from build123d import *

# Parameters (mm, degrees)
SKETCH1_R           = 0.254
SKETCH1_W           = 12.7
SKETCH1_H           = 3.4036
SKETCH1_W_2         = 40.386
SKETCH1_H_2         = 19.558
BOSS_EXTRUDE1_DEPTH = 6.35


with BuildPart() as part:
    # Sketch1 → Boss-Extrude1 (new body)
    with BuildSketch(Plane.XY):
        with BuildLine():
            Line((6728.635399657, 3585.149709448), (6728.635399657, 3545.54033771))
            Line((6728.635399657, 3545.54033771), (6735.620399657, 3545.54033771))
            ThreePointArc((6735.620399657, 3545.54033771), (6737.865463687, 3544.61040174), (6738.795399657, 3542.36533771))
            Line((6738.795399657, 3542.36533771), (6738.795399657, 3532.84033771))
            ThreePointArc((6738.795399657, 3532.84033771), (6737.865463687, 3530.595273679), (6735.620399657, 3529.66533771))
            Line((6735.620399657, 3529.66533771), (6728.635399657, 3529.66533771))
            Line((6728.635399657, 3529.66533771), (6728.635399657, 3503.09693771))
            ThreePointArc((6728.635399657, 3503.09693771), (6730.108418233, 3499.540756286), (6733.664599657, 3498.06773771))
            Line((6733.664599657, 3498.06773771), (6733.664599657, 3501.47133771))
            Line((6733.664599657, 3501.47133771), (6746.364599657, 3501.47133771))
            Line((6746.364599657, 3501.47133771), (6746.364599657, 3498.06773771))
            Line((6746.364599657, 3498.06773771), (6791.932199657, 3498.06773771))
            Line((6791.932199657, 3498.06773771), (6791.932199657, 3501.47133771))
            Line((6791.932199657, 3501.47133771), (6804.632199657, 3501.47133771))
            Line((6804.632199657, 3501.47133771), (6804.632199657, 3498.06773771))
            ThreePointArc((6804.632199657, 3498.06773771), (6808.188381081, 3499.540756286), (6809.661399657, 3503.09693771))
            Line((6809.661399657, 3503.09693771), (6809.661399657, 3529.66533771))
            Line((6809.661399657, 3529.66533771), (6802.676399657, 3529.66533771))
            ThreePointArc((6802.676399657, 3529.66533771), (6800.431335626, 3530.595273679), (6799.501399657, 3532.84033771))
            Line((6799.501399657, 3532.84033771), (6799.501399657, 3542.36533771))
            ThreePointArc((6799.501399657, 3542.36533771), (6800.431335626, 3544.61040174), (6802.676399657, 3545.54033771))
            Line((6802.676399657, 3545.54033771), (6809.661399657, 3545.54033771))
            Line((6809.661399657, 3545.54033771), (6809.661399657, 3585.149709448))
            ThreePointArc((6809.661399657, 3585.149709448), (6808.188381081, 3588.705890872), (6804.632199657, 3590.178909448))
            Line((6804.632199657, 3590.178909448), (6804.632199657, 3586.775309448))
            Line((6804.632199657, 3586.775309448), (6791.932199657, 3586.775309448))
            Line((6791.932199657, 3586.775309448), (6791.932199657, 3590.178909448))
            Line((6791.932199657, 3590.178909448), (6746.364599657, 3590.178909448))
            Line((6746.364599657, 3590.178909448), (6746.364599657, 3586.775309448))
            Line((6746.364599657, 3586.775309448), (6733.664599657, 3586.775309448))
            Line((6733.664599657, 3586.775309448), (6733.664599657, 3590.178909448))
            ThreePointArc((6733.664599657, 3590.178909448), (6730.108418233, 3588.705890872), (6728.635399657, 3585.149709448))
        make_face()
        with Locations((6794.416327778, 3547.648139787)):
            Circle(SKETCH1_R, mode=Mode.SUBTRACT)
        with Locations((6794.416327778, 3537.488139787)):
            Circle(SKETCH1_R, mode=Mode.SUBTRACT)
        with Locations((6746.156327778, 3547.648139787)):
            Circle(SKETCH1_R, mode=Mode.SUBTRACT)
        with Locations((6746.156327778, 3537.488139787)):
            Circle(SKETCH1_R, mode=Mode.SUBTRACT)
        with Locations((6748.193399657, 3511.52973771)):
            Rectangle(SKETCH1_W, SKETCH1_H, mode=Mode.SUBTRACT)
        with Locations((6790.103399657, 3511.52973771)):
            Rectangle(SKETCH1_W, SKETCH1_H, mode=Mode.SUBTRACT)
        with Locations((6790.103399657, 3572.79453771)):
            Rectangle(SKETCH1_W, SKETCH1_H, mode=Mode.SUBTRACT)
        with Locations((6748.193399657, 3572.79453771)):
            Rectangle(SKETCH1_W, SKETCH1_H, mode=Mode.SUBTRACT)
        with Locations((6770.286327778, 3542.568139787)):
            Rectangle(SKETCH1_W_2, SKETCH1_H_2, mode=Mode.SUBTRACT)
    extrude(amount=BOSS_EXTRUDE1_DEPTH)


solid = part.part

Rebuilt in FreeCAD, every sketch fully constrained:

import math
import FreeCAD as App
import Part
import Sketcher
from FreeCAD import Vector
Q = App.Units.Quantity


def add_polygon(sketch, points):
    """Adds a closed chain of lines whose ends are joined by coincident constraints."""
    first, n = sketch.GeometryCount, len(points)
    for a, b in zip(points, points[1:] + points[:1]):
        sketch.addGeometry(Part.LineSegment(App.Vector(*a, 0), App.Vector(*b, 0)), False)
    for i in range(n):
        sketch.addConstraint(Sketcher.Constraint("Coincident", first + i, 2, first + (i + 1) % n, 1))

doc = App.newDocument("Part")
body = doc.addObject("PartDesign::Body", "Body")

sketch1 = body.newObject("Sketcher::SketchObject", "Sketch")
sketch1.AttachmentSupport = (doc.getObject("XY_Plane"), [""])
sketch1.MapMode = "FlatFace"
sketch1.addGeometry(Part.LineSegment(Vector(6728.6354, 3585.149709, 0), Vector(6728.6354, 3545.540338, 0)), False)
sketch1.addGeometry(Part.LineSegment(Vector(6728.6354, 3545.540338, 0), Vector(6735.6204, 3545.540338, 0)), False)
sketch1.addGeometry(Part.ArcOfCircle(Part.Circle(Vector(6735.6204, 3542.365338, 0), Vector(0, 0, 1), 3.175), math.radians(0), math.radians(90)), False)
sketch1.addGeometry(Part.LineSegment(Vector(6738.7954, 3542.365338, 0), Vector(6738.7954, 3532.840338, 0)), False)
sketch1.addGeometry(Part.ArcOfCircle(Part.Circle(Vector(6735.6204, 3532.840338, 0), Vector(0, 0, 1), 3.175), math.radians(-90), math.radians(0)), False)
sketch1.addGeometry(Part.LineSegment(Vector(6735.6204, 3529.665338, 0), Vector(6728.6354, 3529.665338, 0)), False)
sketch1.addGeometry(Part.LineSegment(Vector(6728.6354, 3529.665338, 0), Vector(6728.6354, 3503.096938, 0)), False)
sketch1.addGeometry(Part.ArcOfCircle(Part.Circle(Vector(6733.6646, 3503.096938, 0), Vector(0, 0, 1), 5.0292), math.radians(180), math.radians(270)), False)
sketch1.addGeometry(Part.LineSegment(Vector(6733.6646, 3498.067738, 0), Vector(6733.6646, 3501.471338, 0)), False)
sketch1.addGeometry(Part.LineSegment(Vector(6733.6646, 3501.471338, 0), Vector(6746.3646, 3501.471338, 0)), False)
sketch1.addGeometry(Part.LineSegment(Vector(6746.3646, 3501.471338, 0), Vector(6746.3646, 3498.067738, 0)), False)
sketch1.addGeometry(Part.LineSegment(Vector(6746.3646, 3498.067738, 0), Vector(6791.9322, 3498.067738, 0)), False)
sketch1.addGeometry(Part.LineSegment(Vector(6791.9322, 3498.067738, 0), Vector(6791.9322, 3501.471338, 0)), False)
sketch1.addGeometry(Part.LineSegment(Vector(6791.9322, 3501.471338, 0), Vector(6804.6322, 3501.471338, 0)), False)
sketch1.addGeometry(Part.LineSegment(Vector(6804.6322, 3501.471338, 0), Vector(6804.6322, 3498.067738, 0)), False)
sketch1.addGeometry(Part.ArcOfCircle(Part.Circle(Vector(6804.6322, 3503.096938, 0), Vector(0, 0, 1), 5.0292), math.radians(-90), math.radians(0)), False)
sketch1.addGeometry(Part.LineSegment(Vector(6809.6614, 3503.096938, 0), Vector(6809.6614, 3529.665338, 0)), False)
sketch1.addGeometry(Part.LineSegment(Vector(6809.6614, 3529.665338, 0), Vector(6802.6764, 3529.665338, 0)), False)
sketch1.addGeometry(Part.ArcOfCircle(Part.Circle(Vector(6802.6764, 3532.840338, 0), Vector(0, 0, 1), 3.175), math.radians(180), math.radians(270)), False)
sketch1.addGeometry(Part.LineSegment(Vector(6799.5014, 3532.840338, 0), Vector(6799.5014, 3542.365338, 0)), False)
sketch1.addGeometry(Part.ArcOfCircle(Part.Circle(Vector(6802.6764, 3542.365338, 0), Vector(0, 0, 1), 3.175), math.radians(90), math.radians(180)), False)
sketch1.addGeometry(Part.LineSegment(Vector(6802.6764, 3545.540338, 0), Vector(6809.6614, 3545.540338, 0)), False)
sketch1.addGeometry(Part.LineSegment(Vector(6809.6614, 3545.540338, 0), Vector(6809.6614, 3585.149709, 0)), False)
sketch1.addGeometry(Part.ArcOfCircle(Part.Circle(Vector(6804.6322, 3585.149709, 0), Vector(0, 0, 1), 5.0292), math.radians(0), math.radians(90)), False)
sketch1.addGeometry(Part.LineSegment(Vector(6804.6322, 3590.178909, 0), Vector(6804.6322, 3586.775309, 0)), False)
sketch1.addGeometry(Part.LineSegment(Vector(6804.6322, 3586.775309, 0), Vector(6791.9322, 3586.775309, 0)), False)
sketch1.addGeometry(Part.LineSegment(Vector(6791.9322, 3586.775309, 0), Vector(6791.9322, 3590.178909, 0)), False)
sketch1.addGeometry(Part.LineSegment(Vector(6791.9322, 3590.178909, 0), Vector(6746.3646, 3590.178909, 0)), False)
sketch1.addGeometry(Part.LineSegment(Vector(6746.3646, 3590.178909, 0), Vector(6746.3646, 3586.775309, 0)), False)
sketch1.addGeometry(Part.LineSegment(Vector(6746.3646, 3586.775309, 0), Vector(6733.6646, 3586.775309, 0)), False)
sketch1.addGeometry(Part.LineSegment(Vector(6733.6646, 3586.775309, 0), Vector(6733.6646, 3590.178909, 0)), False)
sketch1.addGeometry(Part.ArcOfCircle(Part.Circle(Vector(6733.6646, 3585.149709, 0), Vector(0, 0, 1), 5.0292), math.radians(90), math.radians(180)), False)
add_polygon(sketch1, [(6754.5434, 3509.827938), (6741.8434, 3509.827938), (6741.8434, 3513.231538), (6754.5434, 3513.231538)])
sketch1.addGeometry(Part.Circle(Vector(6746.156328, 3537.48814, 0), Vector(0, 0, 1), 0.254), False)
add_polygon(sketch1, [(6796.4534, 3509.827938), (6783.7534, 3509.827938), (6783.7534, 3513.231538), (6796.4534, 3513.231538)])
sketch1.addGeometry(Part.Circle(Vector(6794.416328, 3537.48814, 0), Vector(0, 0, 1), 0.254), False)
sketch1.addGeometry(Part.Circle(Vector(6746.156328, 3547.64814, 0), Vector(0, 0, 1), 0.254), False)
add_polygon(sketch1, [(6754.5434, 3571.092738), (6741.8434, 3571.092738), (6741.8434, 3574.496338), (6754.5434, 3574.496338)])
add_polygon(sketch1, [(6790.479328, 3532.78914), (6750.093328, 3532.78914), (6750.093328, 3552.34714), (6790.479328, 3552.34714)])
sketch1.addGeometry(Part.Circle(Vector(6794.416328, 3547.64814, 0), Vector(0, 0, 1), 0.254), False)
add_polygon(sketch1, [(6796.4534, 3571.092738), (6783.7534, 3571.092738), (6783.7534, 3574.496338), (6796.4534, 3574.496338)])
sketch1.addConstraint(Sketcher.Constraint("Coincident", 0, 2, 1, 1))
sketch1.addConstraint(Sketcher.Constraint("Tangent", 1, 2, 2, 2))
sketch1.addConstraint(Sketcher.Constraint("Tangent", 2, 1, 3, 1))
sketch1.addConstraint(Sketcher.Constraint("Tangent", 3, 2, 4, 2))
sketch1.addConstraint(Sketcher.Constraint("Tangent", 4, 1, 5, 1))
sketch1.addConstraint(Sketcher.Constraint("Coincident", 5, 2, 6, 1))
sketch1.addConstraint(Sketcher.Constraint("Tangent", 6, 2, 7, 1))
sketch1.addConstraint(Sketcher.Constraint("Coincident", 7, 2, 8, 1))
sketch1.addConstraint(Sketcher.Constraint("Coincident", 8, 2, 9, 1))
sketch1.addConstraint(Sketcher.Constraint("Coincident", 9, 2, 10, 1))
sketch1.addConstraint(Sketcher.Constraint("Coincident", 10, 2, 11, 1))
sketch1.addConstraint(Sketcher.Constraint("Coincident", 11, 2, 12, 1))
sketch1.addConstraint(Sketcher.Constraint("Coincident", 12, 2, 13, 1))
sketch1.addConstraint(Sketcher.Constraint("Coincident", 13, 2, 14, 1))
sketch1.addConstraint(Sketcher.Constraint("Coincident", 14, 2, 15, 1))
sketch1.addConstraint(Sketcher.Constraint("Tangent", 15, 2, 16, 1))
sketch1.addConstraint(Sketcher.Constraint("Coincident", 16, 2, 17, 1))
sketch1.addConstraint(Sketcher.Constraint("Tangent", 17, 2, 18, 2))
sketch1.addConstraint(Sketcher.Constraint("Tangent", 18, 1, 19, 1))
sketch1.addConstraint(Sketcher.Constraint("Tangent", 19, 2, 20, 2))
sketch1.addConstraint(Sketcher.Constraint("Tangent", 20, 1, 21, 1))
sketch1.addConstraint(Sketcher.Constraint("Coincident", 21, 2, 22, 1))
sketch1.addConstraint(Sketcher.Constraint("Tangent", 22, 2, 23, 1))
sketch1.addConstraint(Sketcher.Constraint("Coincident", 23, 2, 24, 1))
sketch1.addConstraint(Sketcher.Constraint("Coincident", 24, 2, 25, 1))
sketch1.addConstraint(Sketcher.Constraint("Coincident", 25, 2, 26, 1))
sketch1.addConstraint(Sketcher.Constraint("Coincident", 26, 2, 27, 1))
sketch1.addConstraint(Sketcher.Constraint("Coincident", 27, 2, 28, 1))
sketch1.addConstraint(Sketcher.Constraint("Coincident", 28, 2, 29, 1))
sketch1.addConstraint(Sketcher.Constraint("Coincident", 29, 2, 30, 1))
sketch1.addConstraint(Sketcher.Constraint("Coincident", 30, 2, 31, 1))
sketch1.addConstraint(Sketcher.Constraint("Tangent", 31, 2, 0, 1))
sketch1.addConstraint(Sketcher.Constraint("Vertical", 0))
sketch1.addConstraint(Sketcher.Constraint("Horizontal", 1))
sketch1.addConstraint(Sketcher.Constraint("Vertical", 3))
sketch1.addConstraint(Sketcher.Constraint("Horizontal", 5))
sketch1.addConstraint(Sketcher.Constraint("Vertical", 6))
sketch1.addConstraint(Sketcher.Constraint("Vertical", 8))
sketch1.addConstraint(Sketcher.Constraint("Horizontal", 9))
sketch1.addConstraint(Sketcher.Constraint("Vertical", 10))
sketch1.addConstraint(Sketcher.Constraint("Horizontal", 11))
sketch1.addConstraint(Sketcher.Constraint("Vertical", 12))
sketch1.addConstraint(Sketcher.Constraint("Horizontal", 13))
sketch1.addConstraint(Sketcher.Constraint("Vertical", 14))
sketch1.addConstraint(Sketcher.Constraint("Vertical", 16))
sketch1.addConstraint(Sketcher.Constraint("Horizontal", 17))
sketch1.addConstraint(Sketcher.Constraint("Vertical", 19))
sketch1.addConstraint(Sketcher.Constraint("Horizontal", 21))
sketch1.addConstraint(Sketcher.Constraint("Vertical", 22))
sketch1.addConstraint(Sketcher.Constraint("Vertical", 24))
sketch1.addConstraint(Sketcher.Constraint("Horizontal", 25))
sketch1.addConstraint(Sketcher.Constraint("Vertical", 26))
sketch1.addConstraint(Sketcher.Constraint("Horizontal", 27))
sketch1.addConstraint(Sketcher.Constraint("Vertical", 28))
sketch1.addConstraint(Sketcher.Constraint("Horizontal", 29))
sketch1.addConstraint(Sketcher.Constraint("Vertical", 30))
sketch1.addConstraint(Sketcher.Constraint("Horizontal", 32))
sketch1.addConstraint(Sketcher.Constraint("Vertical", 33))
sketch1.addConstraint(Sketcher.Constraint("Horizontal", 34))
sketch1.addConstraint(Sketcher.Constraint("Vertical", 35))
sketch1.addConstraint(Sketcher.Constraint("Horizontal", 37))
sketch1.addConstraint(Sketcher.Constraint("Vertical", 38))
sketch1.addConstraint(Sketcher.Constraint("Horizontal", 39))
sketch1.addConstraint(Sketcher.Constraint("Vertical", 40))
sketch1.addConstraint(Sketcher.Constraint("Horizontal", 43))
sketch1.addConstraint(Sketcher.Constraint("Vertical", 44))
sketch1.addConstraint(Sketcher.Constraint("Horizontal", 45))
sketch1.addConstraint(Sketcher.Constraint("Vertical", 46))
sketch1.addConstraint(Sketcher.Constraint("Horizontal", 47))
sketch1.addConstraint(Sketcher.Constraint("Vertical", 48))
sketch1.addConstraint(Sketcher.Constraint("Horizontal", 49))
sketch1.addConstraint(Sketcher.Constraint("Vertical", 50))
sketch1.addConstraint(Sketcher.Constraint("Horizontal", 52))
sketch1.addConstraint(Sketcher.Constraint("Vertical", 53))
sketch1.addConstraint(Sketcher.Constraint("Horizontal", 54))
sketch1.addConstraint(Sketcher.Constraint("Vertical", 55))
sketch1.addConstraint(Sketcher.Constraint("Equal", 2, 4))
sketch1.addConstraint(Sketcher.Constraint("Equal", 7, 15))
sketch1.addConstraint(Sketcher.Constraint("Equal", 4, 18))
sketch1.addConstraint(Sketcher.Constraint("Equal", 18, 20))
sketch1.addConstraint(Sketcher.Constraint("Equal", 15, 23))
sketch1.addConstraint(Sketcher.Constraint("Equal", 23, 31))
sketch1.addConstraint(Sketcher.Constraint("Equal", 36, 41))
sketch1.addConstraint(Sketcher.Constraint("Equal", 41, 42))
sketch1.addConstraint(Sketcher.Constraint("Equal", 42, 51))
sketch1.addConstraint(Sketcher.Constraint("Horizontal", 7, 3, 15, 3))
sketch1.addConstraint(Sketcher.Constraint("Horizontal", 4, 3, 18, 3))
sketch1.addConstraint(Sketcher.Constraint("Horizontal", 2, 3, 20, 3))
sketch1.addConstraint(Sketcher.Constraint("Horizontal", 23, 3, 31, 3))
sketch1.addConstraint(Sketcher.Constraint("Horizontal", 36, 3, 41, 3))
sketch1.addConstraint(Sketcher.Constraint("Horizontal", 42, 3, 51, 3))
sketch1.addConstraint(Sketcher.Constraint("Horizontal", 7, 2, 10, 2))
sketch1.addConstraint(Sketcher.Constraint("Horizontal", 9, 2, 12, 2))
sketch1.addConstraint(Sketcher.Constraint("Horizontal", 23, 2, 26, 2))
sketch1.addConstraint(Sketcher.Constraint("Horizontal", 25, 2, 28, 2))
sketch1.addConstraint(Sketcher.Constraint("Horizontal", 35, 2, 37, 2))
sketch1.addConstraint(Sketcher.Constraint("Horizontal", 34, 2, 38, 2))
sketch1.addConstraint(Sketcher.Constraint("Horizontal", 46, 2, 52, 2))
sketch1.addConstraint(Sketcher.Constraint("Horizontal", 45, 2, 53, 2))
sketch1.addConstraint(Sketcher.Constraint("Vertical", 15, 3, 23, 3))
sketch1.addConstraint(Sketcher.Constraint("Vertical", 7, 3, 31, 3))
sketch1.addConstraint(Sketcher.Constraint("Vertical", 36, 3, 42, 3))
sketch1.addConstraint(Sketcher.Constraint("Vertical", 41, 3, 51, 3))
sketch1.addConstraint(Sketcher.Constraint("Vertical", 31, 3, 7, 2))
sketch1.addConstraint(Sketcher.Constraint("Vertical", 23, 3, 13, 2))
sketch1.addConstraint(Sketcher.Constraint("Vertical", 14, 2, 23, 2))
sketch1.addConstraint(Sketcher.Constraint("Vertical", 12, 2, 25, 2))
sketch1.addConstraint(Sketcher.Constraint("Vertical", 10, 2, 27, 2))
sketch1.addConstraint(Sketcher.Constraint("Vertical", 8, 2, 29, 2))
sketch1.addConstraint(Sketcher.Constraint("Vertical", 33, 2, 43, 2))
sketch1.addConstraint(Sketcher.Constraint("Vertical", 35, 2, 45, 2))
sketch1.addConstraint(Sketcher.Constraint("Vertical", 38, 2, 52, 2))
sketch1.addConstraint(Sketcher.Constraint("Vertical", 40, 2, 54, 2))
sketch1.addConstraint(Sketcher.Constraint("Equal", 9, 13))
sketch1.addConstraint(Sketcher.Constraint("Equal", 5, 17))
sketch1.addConstraint(Sketcher.Constraint("Equal", 29, 32))
sketch1.addConstraint(Sketcher.Constraint("Equal", 34, 37))
sketch1.addConstraint(Sketcher.Constraint("Equal", 14, 24))
sketch1.addConstraint(Sketcher.Constraint("Equal", 30, 33))
sketch1.addConstraint(Sketcher.Constraint("Equal", 40, 44))
sketch1.addConstraint(Sketcher.Constraint("Diameter", 36, Q("0.02 in")))
sketch1.addConstraint(Sketcher.Constraint("DistanceX", 9, 1, 9, 2, Q("0.5 in")))
sketch1.addConstraint(Sketcher.Constraint("Radius", 2, Q("0.125 in")))
sketch1.addConstraint(Sketcher.Constraint("Radius", 7, Q("0.198 in")))
sketch1.addConstraint(Sketcher.Constraint("DistanceX", 47, 2, 47, 1, Q("1.59 in")))
sketch1.addConstraint(Sketcher.Constraint("DistanceY", 48, 1, 48, 2, Q("0.77 in")))
sketch1.addConstraint(Sketcher.Constraint("DistanceX", 1, 1, 1, 2, Q("0.275 in")))
sketch1.addConstraint(Sketcher.Constraint("DistanceX", 11, 1, 11, 2, Q("1.794 in")))
sketch1.addConstraint(Sketcher.Constraint("DistanceY", 3, 2, 3, 1, Q("0.375 in")))
sketch1.addConstraint(Sketcher.Constraint("DistanceY", 6, 2, 6, 1, Q("1.046 in")))
sketch1.addConstraint(Sketcher.Constraint("DistanceY", 8, 1, 8, 2, Q("0.134 in")))
sketch1.addConstraint(Sketcher.Constraint("DistanceY", 0, 2, 0, 1, 39.609372))
sketch1.addConstraint(Sketcher.Constraint("DistanceX", -1, 1, 2, 3, 6735.6204))
sketch1.addConstraint(Sketcher.Constraint("DistanceX", -1, 1, 32, 2, 6741.8434))
sketch1.addConstraint(Sketcher.Constraint("DistanceX", -1, 1, 37, 2, 6783.7534))
sketch1.addConstraint(Sketcher.Constraint("DistanceY", -1, 1, 23, 3, 3585.149709))
sketch1.addConstraint(Sketcher.Constraint("DistanceY", -1, 1, 36, 3, 3537.48814))
sketch1.addConstraint(Sketcher.Constraint("DistanceY", -1, 1, 42, 3, 3547.64814))
sketch1.addConstraint(Sketcher.Constraint("DistanceY", -1, 1, 47, 2, 3532.78914))
sketch1.addConstraint(Sketcher.Constraint("DistanceX", -1, 1, 36, 3, 6746.156328))
sketch1.addConstraint(Sketcher.Constraint("DistanceX", -1, 1, 41, 3, 6794.416328))
sketch1.addConstraint(Sketcher.Constraint("DistanceY", -1, 1, 32, 2, 3509.827938))
sketch1.addConstraint(Sketcher.Constraint("DistanceY", -1, 1, 43, 2, 3571.092738))
sketch1.addConstraint(Sketcher.Constraint("DistanceX", -1, 1, 47, 2, 6750.093328))
pad1 = body.newObject("PartDesign::Pad", "Pad")
pad1.Profile = sketch1
pad1.Length = Q("0.25 in")

doc.recompute()
